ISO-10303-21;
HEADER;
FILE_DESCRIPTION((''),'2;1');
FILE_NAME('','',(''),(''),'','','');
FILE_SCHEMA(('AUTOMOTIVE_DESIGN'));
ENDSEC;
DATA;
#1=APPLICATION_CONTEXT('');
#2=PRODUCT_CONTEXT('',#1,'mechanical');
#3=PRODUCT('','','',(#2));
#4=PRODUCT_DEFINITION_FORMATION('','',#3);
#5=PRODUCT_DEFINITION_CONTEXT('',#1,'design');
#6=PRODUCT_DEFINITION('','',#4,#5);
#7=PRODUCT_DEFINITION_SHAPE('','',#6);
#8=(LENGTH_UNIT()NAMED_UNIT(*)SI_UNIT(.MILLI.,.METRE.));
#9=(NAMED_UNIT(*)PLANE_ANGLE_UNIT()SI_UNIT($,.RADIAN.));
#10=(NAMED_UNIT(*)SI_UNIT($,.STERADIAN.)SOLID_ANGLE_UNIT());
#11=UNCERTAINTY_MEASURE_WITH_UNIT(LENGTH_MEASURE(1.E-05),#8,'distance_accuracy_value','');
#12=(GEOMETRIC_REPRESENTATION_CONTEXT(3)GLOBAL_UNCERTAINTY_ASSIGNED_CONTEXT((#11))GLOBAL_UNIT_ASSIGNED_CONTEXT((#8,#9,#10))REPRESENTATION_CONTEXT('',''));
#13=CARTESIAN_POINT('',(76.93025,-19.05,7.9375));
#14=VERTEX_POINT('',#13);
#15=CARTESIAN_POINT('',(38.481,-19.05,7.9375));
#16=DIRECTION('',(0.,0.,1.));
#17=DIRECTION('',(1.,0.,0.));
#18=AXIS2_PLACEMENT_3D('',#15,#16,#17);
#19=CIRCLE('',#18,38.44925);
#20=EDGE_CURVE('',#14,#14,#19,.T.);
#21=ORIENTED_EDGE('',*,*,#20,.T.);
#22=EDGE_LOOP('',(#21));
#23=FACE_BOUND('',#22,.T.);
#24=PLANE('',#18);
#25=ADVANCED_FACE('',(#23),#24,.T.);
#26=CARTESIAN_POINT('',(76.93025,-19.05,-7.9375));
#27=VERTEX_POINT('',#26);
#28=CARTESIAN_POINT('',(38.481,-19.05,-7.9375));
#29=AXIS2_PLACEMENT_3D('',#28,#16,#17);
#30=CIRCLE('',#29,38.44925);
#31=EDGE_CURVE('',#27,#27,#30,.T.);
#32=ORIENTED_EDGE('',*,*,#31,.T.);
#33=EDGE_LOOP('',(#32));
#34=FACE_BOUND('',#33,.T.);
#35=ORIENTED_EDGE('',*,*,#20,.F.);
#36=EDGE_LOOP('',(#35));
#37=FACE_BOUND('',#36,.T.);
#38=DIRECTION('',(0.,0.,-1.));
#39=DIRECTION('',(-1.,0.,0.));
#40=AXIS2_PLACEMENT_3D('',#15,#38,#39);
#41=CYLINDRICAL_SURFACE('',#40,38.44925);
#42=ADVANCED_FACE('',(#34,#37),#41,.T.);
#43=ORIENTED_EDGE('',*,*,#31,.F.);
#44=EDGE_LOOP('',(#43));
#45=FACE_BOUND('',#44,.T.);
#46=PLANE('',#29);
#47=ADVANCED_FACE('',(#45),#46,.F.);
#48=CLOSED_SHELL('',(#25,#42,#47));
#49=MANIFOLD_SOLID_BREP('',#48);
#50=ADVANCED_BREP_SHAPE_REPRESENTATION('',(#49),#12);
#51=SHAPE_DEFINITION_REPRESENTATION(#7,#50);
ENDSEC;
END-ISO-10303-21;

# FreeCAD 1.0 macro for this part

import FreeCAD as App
import Part
import Sketcher
Q = App.Units.Quantity

doc = App.newDocument("Part")
body = doc.addObject("PartDesign::Body", "Body")

sketch1 = doc.addObject("Sketcher::SketchObject", "Sketch")
body.addObject(sketch1)
sketch1.AttachmentSupport = (doc.XY_Plane, [""])
sketch1.MapMode = "FlatFace"
sketch1.addGeometry(Part.Circle(App.Vector(38, -19, 0), App.Vector(0, 0, 1), 38), False)
sketch1.addConstraint(Sketcher.Constraint("Diameter", 0, Q("3.0275 in")))
sketch1.addConstraint(Sketcher.Constraint("DistanceY", 0, 3, -1, 1, Q("0.75 in")))
sketch1.addConstraint(Sketcher.Constraint("DistanceX", -1, 1, 0, 3, Q("1.515 in")))
pad1 = doc.addObject("PartDesign::Pad", "Pad")
body.addObject(pad1)
pad1.Profile = sketch1
pad1.Length = Q("0.625 in")
pad1.Midplane = True

doc.recompute()
